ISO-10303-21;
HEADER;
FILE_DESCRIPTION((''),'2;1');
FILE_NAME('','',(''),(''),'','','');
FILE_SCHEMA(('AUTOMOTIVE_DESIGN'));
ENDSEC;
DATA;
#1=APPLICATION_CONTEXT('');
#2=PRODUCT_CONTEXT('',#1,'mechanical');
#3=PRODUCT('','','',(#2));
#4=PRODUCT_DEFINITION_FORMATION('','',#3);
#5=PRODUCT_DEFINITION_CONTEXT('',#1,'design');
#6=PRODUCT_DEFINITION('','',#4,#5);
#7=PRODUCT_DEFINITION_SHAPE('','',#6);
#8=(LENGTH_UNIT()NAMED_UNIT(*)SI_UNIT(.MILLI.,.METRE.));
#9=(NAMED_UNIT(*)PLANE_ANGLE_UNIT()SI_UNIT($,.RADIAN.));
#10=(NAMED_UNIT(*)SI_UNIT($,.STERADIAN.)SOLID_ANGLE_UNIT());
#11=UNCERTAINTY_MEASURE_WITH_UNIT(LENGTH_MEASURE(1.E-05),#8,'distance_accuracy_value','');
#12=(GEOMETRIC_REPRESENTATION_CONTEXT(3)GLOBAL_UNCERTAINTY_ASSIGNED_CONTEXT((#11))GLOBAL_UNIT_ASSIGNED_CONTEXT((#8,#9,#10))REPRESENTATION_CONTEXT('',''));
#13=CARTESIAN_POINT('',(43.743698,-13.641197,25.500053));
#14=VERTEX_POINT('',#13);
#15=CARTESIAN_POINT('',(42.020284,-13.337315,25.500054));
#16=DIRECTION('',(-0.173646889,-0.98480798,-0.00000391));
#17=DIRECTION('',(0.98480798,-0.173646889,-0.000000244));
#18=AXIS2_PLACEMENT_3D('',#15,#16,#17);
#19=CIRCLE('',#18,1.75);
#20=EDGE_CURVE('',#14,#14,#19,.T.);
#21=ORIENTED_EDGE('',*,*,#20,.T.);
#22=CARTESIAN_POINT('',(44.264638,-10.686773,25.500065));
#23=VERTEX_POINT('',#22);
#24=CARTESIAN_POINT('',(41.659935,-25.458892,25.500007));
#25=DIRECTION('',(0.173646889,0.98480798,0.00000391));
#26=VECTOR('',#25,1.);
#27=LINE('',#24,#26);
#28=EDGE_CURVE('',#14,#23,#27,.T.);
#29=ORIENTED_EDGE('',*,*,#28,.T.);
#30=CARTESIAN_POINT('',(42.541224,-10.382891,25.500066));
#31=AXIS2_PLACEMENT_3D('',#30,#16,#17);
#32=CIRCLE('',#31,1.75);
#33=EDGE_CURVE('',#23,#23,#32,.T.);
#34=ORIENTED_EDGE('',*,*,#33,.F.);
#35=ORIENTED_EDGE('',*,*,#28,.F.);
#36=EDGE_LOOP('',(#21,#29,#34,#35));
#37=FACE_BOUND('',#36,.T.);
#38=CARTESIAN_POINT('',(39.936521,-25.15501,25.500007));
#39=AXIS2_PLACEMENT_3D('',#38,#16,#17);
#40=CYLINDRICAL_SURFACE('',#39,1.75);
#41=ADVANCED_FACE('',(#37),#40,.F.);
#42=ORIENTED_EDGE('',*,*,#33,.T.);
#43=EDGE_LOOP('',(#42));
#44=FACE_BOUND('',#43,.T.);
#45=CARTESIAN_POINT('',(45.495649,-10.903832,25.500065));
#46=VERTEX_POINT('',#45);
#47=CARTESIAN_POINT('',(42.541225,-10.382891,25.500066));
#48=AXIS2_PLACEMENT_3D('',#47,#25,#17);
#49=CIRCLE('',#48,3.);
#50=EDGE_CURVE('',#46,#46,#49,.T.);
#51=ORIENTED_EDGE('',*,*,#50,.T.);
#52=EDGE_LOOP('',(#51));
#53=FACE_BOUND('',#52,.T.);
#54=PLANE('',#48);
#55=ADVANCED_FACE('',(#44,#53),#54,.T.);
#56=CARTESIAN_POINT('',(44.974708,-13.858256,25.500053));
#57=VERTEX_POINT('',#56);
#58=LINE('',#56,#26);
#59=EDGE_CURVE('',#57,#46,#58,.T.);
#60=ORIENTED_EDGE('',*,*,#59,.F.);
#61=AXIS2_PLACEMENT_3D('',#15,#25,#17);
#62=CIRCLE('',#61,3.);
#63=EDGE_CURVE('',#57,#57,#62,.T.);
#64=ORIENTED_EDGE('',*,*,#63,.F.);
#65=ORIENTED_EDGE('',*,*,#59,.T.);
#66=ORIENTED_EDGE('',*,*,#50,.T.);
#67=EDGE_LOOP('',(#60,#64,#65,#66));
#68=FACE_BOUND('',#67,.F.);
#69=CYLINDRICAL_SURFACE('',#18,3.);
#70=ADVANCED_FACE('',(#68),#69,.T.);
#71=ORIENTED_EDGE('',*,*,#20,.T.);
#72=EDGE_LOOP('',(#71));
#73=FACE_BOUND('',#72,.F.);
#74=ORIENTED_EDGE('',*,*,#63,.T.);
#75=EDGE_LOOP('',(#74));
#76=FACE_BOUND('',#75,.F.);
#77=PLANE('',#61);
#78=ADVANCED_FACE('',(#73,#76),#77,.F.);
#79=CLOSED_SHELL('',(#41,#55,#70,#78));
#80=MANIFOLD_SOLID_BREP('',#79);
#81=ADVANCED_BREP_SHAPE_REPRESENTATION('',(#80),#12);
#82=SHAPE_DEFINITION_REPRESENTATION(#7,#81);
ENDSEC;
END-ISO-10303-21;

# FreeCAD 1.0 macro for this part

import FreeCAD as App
import Part
import Sketcher

doc = App.newDocument("Part")
body = doc.addObject("PartDesign::Body", "Body")

sketch1 = body.newObject("Sketcher::SketchObject", "Sketch")
sketch1.AttachmentSupport = (doc.getObject("XY_Plane"), [""])
sketch1.MapMode = "FlatFace"
sketch1.addGeometry(Part.Circle(App.Vector(0, 0, 0), App.Vector(0, 0, 1), 1.8), False)
sketch1.addConstraint([
    Sketcher.Constraint("Coincident", 0, 3, -1, 1),
    Sketcher.Constraint("Diameter", 0, 3.5),
])
pad1 = body.newObject("PartDesign::Pad", "Pad")
pad1.Profile = sketch1
pad1.Length = 19
body2 = doc.addObject("PartDesign::Body", "Body001")
doc.recompute()

body.Placement = App.Placement(App.Vector(0, 0, 0), App.Rotation(App.Vector(1, 0, 0), 270.000224))
boolean = body2.newObject("PartDesign::Boolean", "Boolean")
boolean.Type = "Fuse"
boolean.addObjects([body])
body3 = doc.addObject("PartDesign::Body", "Body002")
doc.recompute()

body2.Placement = App.Placement(App.Vector(0, 0, 0), App.Rotation(App.Vector(0, 1, 0), 0.000014))
boolean2 = body3.newObject("PartDesign::Boolean", "Boolean001")
boolean2.Type = "Fuse"
boolean2.addObjects([body2])
body4 = doc.addObject("PartDesign::Body", "Body003")
doc.recompute()

body3.Placement = App.Placement(App.Vector(39.936521, -25.15501, 25.500007), App.Rotation(App.Vector(0, 0, 1), 350.000075))
boolean3 = body4.newObject("PartDesign::Boolean", "Boolean002")
boolean3.Type = "Fuse"
boolean3.addObjects([body3])
body5 = doc.addObject("PartDesign::Body", "Body004")

sketch2 = body5.newObject("Sketcher::SketchObject", "Sketch001")
sketch2.AttachmentSupport = (doc.getObject("XY_Plane004"), [""])
sketch2.MapMode = "FlatFace"
sketch2.addGeometry(Part.Circle(App.Vector(0, 0, 0), App.Vector(0, 0, 1), 3), False)
sketch2.addConstraint([
    Sketcher.Constraint("Coincident", 0, 3, -1, 1),
    Sketcher.Constraint("Diameter", 0, 6.0),
])
pad2 = body5.newObject("PartDesign::Pad", "Pad001")
pad2.Profile = sketch2
pad2.Length = 3
body6 = doc.addObject("PartDesign::Body", "Body005")
doc.recompute()

body5.Placement = App.Placement(App.Vector(0, 0, 0), App.Rotation(App.Vector(1, 0, 0), 270.000224))
boolean4 = body6.newObject("PartDesign::Boolean", "Boolean003")
boolean4.Type = "Fuse"
boolean4.addObjects([body5])
body7 = doc.addObject("PartDesign::Body", "Body006")
doc.recompute()

body6.Placement = App.Placement(App.Vector(0, 0, 0), App.Rotation(App.Vector(0, 1, 0), 0.000014))
boolean5 = body7.newObject("PartDesign::Boolean", "Boolean004")
boolean5.Type = "Fuse"
boolean5.addObjects([body6])
body8 = doc.addObject("PartDesign::Body", "Body007")
doc.recompute()

body7.Placement = App.Placement(App.Vector(42.020284, -13.337315, 25.500054), App.Rotation(App.Vector(0, 0, 1), 350.000075))
boolean6 = body8.newObject("PartDesign::Boolean", "Boolean005")
boolean6.Type = "Fuse"
boolean6.addObjects([body7])
doc.recompute()

boolean7 = body8.newObject("PartDesign::Boolean", "Boolean006")
boolean7.Type = "Cut"
boolean7.addObjects([body4])

doc.recompute()
